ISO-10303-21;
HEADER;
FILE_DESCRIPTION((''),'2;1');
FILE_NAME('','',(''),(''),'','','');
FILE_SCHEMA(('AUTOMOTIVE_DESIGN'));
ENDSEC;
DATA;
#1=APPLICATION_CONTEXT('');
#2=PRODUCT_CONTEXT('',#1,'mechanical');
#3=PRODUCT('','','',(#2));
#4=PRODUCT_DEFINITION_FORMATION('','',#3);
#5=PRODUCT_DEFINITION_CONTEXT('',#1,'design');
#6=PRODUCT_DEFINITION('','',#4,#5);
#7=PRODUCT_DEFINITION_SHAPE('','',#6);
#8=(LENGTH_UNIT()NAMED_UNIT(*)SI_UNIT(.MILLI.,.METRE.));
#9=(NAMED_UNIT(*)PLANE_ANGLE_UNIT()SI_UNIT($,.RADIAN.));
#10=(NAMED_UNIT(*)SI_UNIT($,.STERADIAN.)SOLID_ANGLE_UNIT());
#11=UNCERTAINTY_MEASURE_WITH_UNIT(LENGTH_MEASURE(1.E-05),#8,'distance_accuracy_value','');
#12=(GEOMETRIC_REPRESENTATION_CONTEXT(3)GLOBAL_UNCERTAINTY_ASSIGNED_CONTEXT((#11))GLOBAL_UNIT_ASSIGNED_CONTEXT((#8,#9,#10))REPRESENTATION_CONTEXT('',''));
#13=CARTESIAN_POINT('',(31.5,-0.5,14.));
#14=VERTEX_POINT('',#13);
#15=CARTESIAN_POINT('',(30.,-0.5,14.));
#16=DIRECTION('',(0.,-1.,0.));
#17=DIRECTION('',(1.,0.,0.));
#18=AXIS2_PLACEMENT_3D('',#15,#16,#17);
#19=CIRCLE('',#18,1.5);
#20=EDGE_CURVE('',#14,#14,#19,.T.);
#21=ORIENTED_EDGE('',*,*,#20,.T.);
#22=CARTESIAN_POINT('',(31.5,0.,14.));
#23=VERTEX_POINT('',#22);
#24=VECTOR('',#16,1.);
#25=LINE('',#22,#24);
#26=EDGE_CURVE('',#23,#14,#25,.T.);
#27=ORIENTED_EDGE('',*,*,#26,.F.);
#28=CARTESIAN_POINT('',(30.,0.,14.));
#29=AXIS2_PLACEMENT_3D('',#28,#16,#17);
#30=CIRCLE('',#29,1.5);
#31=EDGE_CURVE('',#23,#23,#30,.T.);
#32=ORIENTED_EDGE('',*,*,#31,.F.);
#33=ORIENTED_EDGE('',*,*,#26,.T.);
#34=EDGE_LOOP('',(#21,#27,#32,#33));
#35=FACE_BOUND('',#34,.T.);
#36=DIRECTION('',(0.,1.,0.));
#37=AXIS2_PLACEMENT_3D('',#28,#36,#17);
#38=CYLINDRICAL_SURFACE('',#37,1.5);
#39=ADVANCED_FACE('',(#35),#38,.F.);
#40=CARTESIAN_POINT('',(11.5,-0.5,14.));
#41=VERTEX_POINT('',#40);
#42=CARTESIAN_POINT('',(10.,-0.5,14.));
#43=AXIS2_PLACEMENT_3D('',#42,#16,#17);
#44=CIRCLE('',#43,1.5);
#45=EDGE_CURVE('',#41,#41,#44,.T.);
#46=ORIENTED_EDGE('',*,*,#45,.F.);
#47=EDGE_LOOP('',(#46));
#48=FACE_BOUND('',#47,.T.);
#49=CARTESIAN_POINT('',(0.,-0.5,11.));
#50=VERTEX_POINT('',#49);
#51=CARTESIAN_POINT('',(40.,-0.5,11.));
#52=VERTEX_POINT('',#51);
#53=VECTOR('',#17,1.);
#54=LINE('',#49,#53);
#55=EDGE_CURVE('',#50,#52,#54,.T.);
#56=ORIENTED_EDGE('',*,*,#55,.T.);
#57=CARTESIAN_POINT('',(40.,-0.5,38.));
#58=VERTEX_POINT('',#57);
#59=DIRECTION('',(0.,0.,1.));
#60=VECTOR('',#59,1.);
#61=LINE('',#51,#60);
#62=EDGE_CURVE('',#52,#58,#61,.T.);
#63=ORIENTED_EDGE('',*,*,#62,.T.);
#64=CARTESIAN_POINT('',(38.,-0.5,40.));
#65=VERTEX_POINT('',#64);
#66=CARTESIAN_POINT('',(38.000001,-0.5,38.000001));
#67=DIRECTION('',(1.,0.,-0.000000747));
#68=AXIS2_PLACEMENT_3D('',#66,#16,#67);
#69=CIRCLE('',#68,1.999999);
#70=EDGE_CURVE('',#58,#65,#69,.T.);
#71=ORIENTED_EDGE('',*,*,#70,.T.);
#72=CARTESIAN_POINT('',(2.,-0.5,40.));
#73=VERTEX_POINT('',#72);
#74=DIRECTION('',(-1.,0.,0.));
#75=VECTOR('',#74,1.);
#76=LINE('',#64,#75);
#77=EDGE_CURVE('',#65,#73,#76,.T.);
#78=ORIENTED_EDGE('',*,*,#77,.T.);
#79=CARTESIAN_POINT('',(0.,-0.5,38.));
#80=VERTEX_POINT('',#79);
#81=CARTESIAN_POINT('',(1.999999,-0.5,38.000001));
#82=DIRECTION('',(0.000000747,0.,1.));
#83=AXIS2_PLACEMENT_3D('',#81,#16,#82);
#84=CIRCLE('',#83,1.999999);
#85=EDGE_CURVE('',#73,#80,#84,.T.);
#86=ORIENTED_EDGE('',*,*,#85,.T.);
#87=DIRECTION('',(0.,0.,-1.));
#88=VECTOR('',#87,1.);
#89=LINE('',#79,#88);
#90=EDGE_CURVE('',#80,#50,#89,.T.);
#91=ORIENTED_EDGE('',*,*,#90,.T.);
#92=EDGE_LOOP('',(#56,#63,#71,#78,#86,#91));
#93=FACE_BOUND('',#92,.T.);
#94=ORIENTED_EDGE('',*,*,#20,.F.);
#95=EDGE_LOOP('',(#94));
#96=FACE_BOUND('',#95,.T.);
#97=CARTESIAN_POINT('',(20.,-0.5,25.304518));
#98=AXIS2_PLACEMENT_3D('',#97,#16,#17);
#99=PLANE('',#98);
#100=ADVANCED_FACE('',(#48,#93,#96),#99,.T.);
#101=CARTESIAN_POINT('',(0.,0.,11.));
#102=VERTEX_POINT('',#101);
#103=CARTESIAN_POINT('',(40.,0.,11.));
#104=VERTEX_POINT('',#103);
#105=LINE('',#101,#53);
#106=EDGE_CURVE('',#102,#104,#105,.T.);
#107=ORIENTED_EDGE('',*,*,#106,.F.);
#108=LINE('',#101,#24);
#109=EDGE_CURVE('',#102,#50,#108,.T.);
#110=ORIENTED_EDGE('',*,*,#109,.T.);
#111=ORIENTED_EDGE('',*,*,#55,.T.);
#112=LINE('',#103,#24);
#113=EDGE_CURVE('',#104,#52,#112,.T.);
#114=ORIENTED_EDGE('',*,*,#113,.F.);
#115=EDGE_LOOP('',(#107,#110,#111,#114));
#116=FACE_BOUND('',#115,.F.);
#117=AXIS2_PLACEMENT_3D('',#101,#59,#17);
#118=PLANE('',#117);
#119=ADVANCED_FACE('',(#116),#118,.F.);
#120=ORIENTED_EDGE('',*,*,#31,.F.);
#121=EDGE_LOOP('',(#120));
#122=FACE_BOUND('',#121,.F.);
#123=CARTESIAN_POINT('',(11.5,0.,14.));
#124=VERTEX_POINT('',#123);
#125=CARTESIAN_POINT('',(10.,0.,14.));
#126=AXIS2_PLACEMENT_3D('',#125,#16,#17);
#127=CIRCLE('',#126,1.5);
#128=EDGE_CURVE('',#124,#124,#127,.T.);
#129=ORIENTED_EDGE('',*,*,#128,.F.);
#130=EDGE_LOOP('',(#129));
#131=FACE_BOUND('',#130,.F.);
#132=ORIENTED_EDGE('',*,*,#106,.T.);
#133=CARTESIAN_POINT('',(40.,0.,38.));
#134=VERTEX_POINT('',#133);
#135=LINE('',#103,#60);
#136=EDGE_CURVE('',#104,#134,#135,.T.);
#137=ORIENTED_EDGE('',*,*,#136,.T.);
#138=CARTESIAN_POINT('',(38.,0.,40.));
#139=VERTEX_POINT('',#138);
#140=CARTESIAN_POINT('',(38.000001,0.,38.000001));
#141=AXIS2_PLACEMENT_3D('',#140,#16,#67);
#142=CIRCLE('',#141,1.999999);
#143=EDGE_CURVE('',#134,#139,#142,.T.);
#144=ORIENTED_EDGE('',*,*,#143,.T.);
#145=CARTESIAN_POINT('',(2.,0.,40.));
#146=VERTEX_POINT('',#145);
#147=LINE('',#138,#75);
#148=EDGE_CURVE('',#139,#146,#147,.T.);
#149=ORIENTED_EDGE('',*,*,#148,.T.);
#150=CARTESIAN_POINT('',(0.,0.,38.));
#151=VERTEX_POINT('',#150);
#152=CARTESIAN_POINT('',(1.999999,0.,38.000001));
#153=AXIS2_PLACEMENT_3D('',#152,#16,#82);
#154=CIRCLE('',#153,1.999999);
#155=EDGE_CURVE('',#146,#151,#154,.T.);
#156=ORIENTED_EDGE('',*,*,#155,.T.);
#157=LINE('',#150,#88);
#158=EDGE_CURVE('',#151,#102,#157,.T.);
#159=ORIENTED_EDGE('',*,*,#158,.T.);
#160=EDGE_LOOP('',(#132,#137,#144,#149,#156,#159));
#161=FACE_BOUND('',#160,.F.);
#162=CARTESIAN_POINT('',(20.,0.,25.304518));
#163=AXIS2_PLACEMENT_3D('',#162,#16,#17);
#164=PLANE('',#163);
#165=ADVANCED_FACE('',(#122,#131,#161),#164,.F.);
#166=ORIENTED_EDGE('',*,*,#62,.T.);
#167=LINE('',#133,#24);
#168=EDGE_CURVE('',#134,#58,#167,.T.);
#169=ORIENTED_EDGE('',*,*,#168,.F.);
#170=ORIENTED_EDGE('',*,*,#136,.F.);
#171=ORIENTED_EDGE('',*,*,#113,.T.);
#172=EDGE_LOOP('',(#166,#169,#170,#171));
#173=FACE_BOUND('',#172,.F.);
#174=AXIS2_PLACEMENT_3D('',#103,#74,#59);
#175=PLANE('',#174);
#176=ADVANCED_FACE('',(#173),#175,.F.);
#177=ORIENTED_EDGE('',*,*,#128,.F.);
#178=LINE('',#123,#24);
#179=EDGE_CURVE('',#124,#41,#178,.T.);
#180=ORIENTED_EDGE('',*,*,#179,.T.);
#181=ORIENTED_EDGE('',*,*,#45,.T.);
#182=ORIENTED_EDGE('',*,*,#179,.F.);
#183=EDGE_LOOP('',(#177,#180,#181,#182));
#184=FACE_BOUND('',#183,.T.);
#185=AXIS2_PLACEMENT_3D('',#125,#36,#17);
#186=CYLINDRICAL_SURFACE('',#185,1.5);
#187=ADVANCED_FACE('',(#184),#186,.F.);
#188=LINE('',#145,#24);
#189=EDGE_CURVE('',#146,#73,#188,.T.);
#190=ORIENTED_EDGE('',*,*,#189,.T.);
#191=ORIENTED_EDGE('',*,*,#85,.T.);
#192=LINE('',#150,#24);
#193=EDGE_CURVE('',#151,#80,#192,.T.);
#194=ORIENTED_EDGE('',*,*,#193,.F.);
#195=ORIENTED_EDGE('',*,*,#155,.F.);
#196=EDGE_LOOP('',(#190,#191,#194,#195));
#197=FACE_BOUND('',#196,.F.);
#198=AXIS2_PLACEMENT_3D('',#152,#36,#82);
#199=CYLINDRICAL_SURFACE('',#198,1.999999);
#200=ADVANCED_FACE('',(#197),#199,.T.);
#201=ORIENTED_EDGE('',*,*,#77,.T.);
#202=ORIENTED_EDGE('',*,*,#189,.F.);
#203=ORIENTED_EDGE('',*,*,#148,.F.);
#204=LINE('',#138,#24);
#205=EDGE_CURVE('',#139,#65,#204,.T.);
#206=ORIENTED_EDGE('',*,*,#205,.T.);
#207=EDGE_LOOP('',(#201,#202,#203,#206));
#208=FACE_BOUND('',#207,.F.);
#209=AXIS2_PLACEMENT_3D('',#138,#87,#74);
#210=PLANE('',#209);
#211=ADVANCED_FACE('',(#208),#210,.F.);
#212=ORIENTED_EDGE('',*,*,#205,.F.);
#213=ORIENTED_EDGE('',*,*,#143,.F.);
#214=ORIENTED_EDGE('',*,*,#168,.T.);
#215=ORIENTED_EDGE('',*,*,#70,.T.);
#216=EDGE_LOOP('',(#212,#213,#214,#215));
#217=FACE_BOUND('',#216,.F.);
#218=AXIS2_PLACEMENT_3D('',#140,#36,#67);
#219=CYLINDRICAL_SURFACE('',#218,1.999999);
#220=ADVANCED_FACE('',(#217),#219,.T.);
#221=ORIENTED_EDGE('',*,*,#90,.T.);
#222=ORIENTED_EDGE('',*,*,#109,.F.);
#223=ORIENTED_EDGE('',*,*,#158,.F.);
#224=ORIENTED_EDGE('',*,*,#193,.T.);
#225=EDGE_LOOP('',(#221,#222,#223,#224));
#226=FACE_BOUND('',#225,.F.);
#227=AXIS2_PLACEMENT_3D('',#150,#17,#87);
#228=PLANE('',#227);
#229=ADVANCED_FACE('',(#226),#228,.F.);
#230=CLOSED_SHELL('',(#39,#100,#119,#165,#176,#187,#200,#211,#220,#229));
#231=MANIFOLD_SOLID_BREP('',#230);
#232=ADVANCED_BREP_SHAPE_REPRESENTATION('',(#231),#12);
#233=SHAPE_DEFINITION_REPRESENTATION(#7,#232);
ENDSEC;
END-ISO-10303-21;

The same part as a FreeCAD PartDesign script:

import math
import FreeCAD as App
import Part
import Sketcher
from FreeCAD import Vector

doc = App.newDocument("Part")
params = doc.addObject("Spreadsheet::Sheet", "Params")
for row, (alias, value) in enumerate([
    ("sketch1_diameter", "3 mm"),
    ("sketch1_radius", "1.999999 mm"),
    ("sketch1_width", "36 mm"),
    ("sketch1_height", "27 mm"),
    ("pad1_length", "0.5 mm"),
], start=1):
    params.set(f"A{row}", alias)
    params.set(f"B{row}", "=" + value)
    params.setAlias(f"B{row}", alias)

body = doc.addObject("PartDesign::Body", "Body")

sketch1 = body.newObject("Sketcher::SketchObject", "Sketch")
sketch1.AttachmentSupport = (doc.getObject("XZ_Plane"), [""])
sketch1.MapMode = "FlatFace"
sketch1.addGeometry([
    Part.LineSegment(Vector(38, 40, 0), Vector(2, 40, 0)),
    Part.ArcOfCircle(Part.Circle(Vector(2, 38, 0), Vector(0, 0, 1), 2), math.radians(90), math.radians(180)),
    Part.LineSegment(Vector(0, 38, 0), Vector(0, 11, 0)),
    Part.LineSegment(Vector(0, 11, 0), Vector(40, 11, 0)),
    Part.LineSegment(Vector(40, 11, 0), Vector(40, 38, 0)),
    Part.ArcOfCircle(Part.Circle(Vector(38, 38, 0), Vector(0, 0, 1), 2), math.radians(0), math.radians(90)),
    Part.Circle(Vector(10, 14, 0), Vector(0, 0, 1), 1.5),
    Part.Circle(Vector(30, 14, 0), Vector(0, 0, 1), 1.5),
], False)
sketch1.addConstraint([
    Sketcher.Constraint("Tangent", 0, 2, 1, 1),
    Sketcher.Constraint("Tangent", 1, 2, 2, 1),
    Sketcher.Constraint("Coincident", 2, 2, 3, 1),
    Sketcher.Constraint("Coincident", 3, 2, 4, 1),
    Sketcher.Constraint("Tangent", 4, 2, 5, 1),
    Sketcher.Constraint("Tangent", 5, 2, 0, 1),
    Sketcher.Constraint("Horizontal", 0),
    Sketcher.Constraint("Vertical", 2),
    Sketcher.Constraint("Horizontal", 3),
    Sketcher.Constraint("Vertical", 4),
    Sketcher.Constraint("Equal", 1, 5),
    Sketcher.Constraint("Equal", 6, 7),
    Sketcher.Constraint("PointOnObject", 1, 2, -2),
    Sketcher.Constraint("Horizontal", 6, 3, 7, 3),
    Sketcher.Constraint("Diameter", 6, 3.0),
    Sketcher.Constraint("Radius", 1, 1.999999),
    Sketcher.Constraint("DistanceX", 0, 2, 0, 1, 36.0),
    Sketcher.Constraint("DistanceY", 2, 2, 2, 1, 27.0),
    Sketcher.Constraint("DistanceY", -1, 1, 1, 3, 38.000001),
    Sketcher.Constraint("DistanceX", -1, 1, 6, 3, 10.0),
    Sketcher.Constraint("DistanceY", -1, 1, 6, 3, 14.0),
    Sketcher.Constraint("DistanceX", -1, 1, 7, 3, 30.0),
])
sketch1.setExpression("Constraints[14]", "Params.sketch1_diameter")
sketch1.setExpression("Constraints[15]", "Params.sketch1_radius")
sketch1.setExpression("Constraints[16]", "Params.sketch1_width")
sketch1.setExpression("Constraints[17]", "Params.sketch1_height")
pad1 = body.newObject("PartDesign::Pad", "Pad")
pad1.Profile = sketch1
pad1.setExpression("Length", "Params.pad1_length")

doc.recompute()
